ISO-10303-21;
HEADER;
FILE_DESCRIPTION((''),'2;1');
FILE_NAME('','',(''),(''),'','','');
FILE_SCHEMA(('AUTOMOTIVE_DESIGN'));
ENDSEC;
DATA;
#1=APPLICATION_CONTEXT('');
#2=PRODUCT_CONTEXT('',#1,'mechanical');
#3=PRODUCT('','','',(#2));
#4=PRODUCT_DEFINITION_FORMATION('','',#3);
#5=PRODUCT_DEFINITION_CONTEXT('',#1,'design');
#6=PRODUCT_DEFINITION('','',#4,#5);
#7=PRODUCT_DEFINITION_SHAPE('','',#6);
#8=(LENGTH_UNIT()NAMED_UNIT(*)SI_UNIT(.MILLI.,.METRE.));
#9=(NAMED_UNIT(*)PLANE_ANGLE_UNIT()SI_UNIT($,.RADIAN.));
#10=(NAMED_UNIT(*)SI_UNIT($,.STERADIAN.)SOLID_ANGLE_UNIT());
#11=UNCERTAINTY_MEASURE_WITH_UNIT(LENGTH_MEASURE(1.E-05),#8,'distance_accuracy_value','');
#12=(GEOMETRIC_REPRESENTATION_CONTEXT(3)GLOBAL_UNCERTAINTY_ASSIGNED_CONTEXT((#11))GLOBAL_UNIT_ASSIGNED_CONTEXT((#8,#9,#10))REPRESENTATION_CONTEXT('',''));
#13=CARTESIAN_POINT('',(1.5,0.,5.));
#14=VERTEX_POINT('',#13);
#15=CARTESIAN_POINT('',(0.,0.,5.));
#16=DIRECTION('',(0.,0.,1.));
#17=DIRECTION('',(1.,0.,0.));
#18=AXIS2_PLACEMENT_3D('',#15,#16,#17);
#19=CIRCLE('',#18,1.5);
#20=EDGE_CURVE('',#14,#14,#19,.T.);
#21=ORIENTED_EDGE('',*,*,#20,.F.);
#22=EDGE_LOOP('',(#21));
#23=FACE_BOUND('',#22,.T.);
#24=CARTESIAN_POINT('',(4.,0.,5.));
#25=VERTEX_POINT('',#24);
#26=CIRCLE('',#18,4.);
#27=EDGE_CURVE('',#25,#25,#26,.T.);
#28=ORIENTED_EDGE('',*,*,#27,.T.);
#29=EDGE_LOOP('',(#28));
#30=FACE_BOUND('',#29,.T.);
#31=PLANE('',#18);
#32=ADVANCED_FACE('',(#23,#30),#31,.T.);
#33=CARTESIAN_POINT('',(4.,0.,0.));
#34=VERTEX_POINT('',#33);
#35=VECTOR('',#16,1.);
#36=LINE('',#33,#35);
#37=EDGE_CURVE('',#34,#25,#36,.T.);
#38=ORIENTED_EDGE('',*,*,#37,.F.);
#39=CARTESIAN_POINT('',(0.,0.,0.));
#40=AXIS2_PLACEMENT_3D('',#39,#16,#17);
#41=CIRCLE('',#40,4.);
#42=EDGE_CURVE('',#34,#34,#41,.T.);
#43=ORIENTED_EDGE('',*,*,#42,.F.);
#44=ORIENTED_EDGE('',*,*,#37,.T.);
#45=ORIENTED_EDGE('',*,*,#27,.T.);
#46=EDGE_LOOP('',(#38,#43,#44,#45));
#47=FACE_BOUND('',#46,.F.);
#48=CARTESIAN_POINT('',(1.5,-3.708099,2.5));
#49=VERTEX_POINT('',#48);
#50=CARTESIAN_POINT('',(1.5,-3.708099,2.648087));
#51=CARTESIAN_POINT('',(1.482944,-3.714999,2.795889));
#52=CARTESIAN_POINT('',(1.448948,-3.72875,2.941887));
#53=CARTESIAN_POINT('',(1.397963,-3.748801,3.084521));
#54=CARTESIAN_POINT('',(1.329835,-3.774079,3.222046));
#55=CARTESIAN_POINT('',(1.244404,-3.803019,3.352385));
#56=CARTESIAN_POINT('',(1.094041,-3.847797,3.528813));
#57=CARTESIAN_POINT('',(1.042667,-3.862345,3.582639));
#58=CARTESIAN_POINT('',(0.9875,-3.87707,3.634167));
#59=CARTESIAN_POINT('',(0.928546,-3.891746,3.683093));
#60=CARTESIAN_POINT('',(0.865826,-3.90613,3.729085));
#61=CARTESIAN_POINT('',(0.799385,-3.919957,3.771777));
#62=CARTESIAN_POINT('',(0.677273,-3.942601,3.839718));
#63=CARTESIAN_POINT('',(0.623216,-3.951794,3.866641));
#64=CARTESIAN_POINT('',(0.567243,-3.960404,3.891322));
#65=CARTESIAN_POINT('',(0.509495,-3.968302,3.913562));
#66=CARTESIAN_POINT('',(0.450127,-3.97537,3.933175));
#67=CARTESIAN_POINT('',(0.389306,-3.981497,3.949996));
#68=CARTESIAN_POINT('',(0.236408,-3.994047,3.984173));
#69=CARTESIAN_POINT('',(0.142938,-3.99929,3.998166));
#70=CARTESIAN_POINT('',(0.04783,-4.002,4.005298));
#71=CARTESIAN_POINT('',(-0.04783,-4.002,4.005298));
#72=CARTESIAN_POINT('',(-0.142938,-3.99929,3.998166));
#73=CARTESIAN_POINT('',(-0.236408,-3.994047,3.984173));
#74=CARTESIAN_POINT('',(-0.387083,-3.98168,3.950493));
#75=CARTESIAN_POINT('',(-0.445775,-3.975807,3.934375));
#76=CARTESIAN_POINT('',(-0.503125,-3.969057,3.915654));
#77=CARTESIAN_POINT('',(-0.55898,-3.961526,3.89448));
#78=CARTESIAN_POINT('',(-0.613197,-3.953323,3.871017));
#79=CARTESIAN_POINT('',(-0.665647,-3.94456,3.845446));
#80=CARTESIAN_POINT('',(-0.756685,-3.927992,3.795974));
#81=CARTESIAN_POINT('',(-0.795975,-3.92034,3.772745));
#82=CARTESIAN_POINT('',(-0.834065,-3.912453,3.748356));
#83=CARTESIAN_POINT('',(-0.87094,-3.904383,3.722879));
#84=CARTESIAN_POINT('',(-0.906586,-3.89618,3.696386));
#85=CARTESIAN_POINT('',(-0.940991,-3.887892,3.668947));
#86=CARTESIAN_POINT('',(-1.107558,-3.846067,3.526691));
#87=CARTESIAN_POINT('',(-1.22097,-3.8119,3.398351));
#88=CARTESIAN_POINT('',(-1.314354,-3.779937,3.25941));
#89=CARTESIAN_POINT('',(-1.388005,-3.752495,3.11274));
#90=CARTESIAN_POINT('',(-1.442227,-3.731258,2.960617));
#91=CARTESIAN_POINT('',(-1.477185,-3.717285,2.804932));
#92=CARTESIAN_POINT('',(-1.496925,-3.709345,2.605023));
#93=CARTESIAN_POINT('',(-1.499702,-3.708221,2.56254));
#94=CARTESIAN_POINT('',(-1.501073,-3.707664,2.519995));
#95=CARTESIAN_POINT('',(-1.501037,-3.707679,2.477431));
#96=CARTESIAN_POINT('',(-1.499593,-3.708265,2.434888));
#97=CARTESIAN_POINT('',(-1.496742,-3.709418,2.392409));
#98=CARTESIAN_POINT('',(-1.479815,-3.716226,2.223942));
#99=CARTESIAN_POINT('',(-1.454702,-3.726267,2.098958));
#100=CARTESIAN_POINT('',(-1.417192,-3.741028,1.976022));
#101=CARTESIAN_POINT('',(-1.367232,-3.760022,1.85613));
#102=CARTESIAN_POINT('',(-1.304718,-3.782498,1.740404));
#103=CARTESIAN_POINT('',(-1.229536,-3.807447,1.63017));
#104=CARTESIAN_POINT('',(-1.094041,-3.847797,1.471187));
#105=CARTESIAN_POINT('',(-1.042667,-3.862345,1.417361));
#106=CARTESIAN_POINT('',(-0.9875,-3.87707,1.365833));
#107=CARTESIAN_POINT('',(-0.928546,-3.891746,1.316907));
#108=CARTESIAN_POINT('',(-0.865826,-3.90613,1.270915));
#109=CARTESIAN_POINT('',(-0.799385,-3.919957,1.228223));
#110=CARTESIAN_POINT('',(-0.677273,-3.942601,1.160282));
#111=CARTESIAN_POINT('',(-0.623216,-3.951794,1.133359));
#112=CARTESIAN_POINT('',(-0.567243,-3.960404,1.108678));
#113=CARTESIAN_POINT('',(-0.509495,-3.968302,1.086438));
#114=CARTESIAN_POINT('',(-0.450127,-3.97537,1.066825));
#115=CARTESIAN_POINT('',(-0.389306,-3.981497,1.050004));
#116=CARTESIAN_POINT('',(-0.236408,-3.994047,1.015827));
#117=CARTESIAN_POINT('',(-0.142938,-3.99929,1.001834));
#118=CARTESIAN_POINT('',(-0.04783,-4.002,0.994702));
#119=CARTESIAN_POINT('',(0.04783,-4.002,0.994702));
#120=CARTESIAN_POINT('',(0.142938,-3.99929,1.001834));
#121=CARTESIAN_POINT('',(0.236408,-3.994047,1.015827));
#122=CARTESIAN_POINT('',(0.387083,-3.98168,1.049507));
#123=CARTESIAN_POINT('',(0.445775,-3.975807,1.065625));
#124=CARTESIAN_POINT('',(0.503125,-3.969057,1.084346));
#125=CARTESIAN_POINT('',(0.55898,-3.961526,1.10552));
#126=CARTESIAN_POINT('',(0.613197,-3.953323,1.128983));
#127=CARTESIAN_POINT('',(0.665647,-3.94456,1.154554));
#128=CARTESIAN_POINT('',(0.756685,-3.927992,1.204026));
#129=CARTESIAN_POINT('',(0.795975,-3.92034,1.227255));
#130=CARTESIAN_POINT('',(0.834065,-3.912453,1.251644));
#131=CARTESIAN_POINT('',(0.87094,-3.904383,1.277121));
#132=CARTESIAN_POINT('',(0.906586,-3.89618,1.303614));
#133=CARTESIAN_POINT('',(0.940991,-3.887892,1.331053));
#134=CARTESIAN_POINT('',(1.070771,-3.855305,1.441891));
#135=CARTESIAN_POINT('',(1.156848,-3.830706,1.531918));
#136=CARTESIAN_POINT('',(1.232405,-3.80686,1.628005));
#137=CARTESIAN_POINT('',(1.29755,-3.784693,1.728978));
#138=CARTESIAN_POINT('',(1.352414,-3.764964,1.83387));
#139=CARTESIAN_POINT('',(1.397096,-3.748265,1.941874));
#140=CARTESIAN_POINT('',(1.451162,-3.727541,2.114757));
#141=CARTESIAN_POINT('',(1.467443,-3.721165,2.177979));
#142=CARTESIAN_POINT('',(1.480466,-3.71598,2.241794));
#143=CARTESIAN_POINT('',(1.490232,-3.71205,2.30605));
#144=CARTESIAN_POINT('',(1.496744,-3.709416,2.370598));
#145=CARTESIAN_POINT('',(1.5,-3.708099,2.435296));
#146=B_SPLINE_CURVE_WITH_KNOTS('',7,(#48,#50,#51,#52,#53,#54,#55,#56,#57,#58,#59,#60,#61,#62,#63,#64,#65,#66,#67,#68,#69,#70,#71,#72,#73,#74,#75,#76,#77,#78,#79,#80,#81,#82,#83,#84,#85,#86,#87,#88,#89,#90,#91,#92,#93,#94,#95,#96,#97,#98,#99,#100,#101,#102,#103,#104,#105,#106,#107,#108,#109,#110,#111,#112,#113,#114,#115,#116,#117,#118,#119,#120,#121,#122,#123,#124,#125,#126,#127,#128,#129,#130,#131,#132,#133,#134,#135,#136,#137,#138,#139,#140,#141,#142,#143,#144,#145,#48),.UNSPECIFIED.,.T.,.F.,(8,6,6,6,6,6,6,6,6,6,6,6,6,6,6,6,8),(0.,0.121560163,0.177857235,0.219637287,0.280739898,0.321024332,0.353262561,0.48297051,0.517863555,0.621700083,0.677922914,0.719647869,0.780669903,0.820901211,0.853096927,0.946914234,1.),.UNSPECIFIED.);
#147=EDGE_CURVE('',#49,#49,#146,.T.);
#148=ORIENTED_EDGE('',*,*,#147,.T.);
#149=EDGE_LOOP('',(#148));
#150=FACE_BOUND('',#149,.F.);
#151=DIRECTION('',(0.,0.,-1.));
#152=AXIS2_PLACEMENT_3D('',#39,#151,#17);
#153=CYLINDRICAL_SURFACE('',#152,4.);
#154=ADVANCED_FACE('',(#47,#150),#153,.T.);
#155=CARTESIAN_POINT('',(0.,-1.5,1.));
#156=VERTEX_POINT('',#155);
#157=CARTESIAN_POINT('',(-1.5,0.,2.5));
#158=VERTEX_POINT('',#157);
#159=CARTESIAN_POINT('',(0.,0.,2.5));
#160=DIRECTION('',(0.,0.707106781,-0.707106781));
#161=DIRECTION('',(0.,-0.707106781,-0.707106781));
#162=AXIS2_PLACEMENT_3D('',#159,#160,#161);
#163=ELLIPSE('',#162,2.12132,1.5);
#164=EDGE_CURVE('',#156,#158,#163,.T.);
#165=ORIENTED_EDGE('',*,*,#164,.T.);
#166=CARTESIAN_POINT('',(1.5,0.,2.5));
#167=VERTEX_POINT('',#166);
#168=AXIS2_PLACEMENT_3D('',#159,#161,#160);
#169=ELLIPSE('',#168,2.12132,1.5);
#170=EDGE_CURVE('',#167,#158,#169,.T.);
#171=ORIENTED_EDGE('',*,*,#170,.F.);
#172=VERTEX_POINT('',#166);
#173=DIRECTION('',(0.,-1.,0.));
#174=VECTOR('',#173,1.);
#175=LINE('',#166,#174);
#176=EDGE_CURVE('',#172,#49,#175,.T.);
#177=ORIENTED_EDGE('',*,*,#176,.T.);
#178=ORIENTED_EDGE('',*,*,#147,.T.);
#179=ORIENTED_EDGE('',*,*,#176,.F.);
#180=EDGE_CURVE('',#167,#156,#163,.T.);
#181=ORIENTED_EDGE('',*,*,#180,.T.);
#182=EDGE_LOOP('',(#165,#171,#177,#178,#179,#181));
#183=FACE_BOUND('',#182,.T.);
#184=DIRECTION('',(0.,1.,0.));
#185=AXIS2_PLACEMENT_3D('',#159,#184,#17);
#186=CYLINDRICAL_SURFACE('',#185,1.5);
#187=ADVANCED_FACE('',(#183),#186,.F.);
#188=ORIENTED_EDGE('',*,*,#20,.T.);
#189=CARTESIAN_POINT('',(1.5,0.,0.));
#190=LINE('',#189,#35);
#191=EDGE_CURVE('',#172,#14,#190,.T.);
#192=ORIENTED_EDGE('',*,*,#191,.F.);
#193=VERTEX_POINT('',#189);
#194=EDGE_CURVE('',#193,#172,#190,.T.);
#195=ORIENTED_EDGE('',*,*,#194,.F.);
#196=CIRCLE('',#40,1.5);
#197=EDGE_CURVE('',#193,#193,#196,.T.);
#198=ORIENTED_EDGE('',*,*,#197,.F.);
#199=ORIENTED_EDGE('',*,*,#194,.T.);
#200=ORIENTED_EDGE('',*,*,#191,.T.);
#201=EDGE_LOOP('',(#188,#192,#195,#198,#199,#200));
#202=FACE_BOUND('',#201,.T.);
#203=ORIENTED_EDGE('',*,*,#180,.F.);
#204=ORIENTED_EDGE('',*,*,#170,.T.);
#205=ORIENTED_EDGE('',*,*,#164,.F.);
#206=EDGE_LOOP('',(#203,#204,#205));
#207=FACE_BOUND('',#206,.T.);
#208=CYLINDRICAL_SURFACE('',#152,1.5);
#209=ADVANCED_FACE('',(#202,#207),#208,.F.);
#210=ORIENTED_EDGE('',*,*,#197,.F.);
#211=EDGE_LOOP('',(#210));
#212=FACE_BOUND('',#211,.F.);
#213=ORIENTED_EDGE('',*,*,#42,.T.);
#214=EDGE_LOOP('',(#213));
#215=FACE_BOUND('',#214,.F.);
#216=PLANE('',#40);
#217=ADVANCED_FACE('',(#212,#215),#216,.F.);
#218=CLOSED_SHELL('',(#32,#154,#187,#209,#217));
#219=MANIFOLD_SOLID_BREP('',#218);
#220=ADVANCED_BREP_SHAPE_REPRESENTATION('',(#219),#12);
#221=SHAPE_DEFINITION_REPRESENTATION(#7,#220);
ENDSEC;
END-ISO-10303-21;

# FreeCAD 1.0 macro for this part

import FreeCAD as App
import Part
import Sketcher
from FreeCAD import Vector

doc = App.newDocument("Part")
body = doc.addObject("PartDesign::Body", "Body")

# Sketch on XY plane
sketch1 = body.newObject("Sketcher::SketchObject", "Sketch")
sketch1.AttachmentSupport = (doc.getObject("XY_Plane"), [""])
sketch1.MapMode = "FlatFace"
sketch1.addGeometry(Part.Circle(Vector(0, 0, 0), Vector(0, 0, 1), 4), False)
sketch1.addGeometry(Part.Circle(Vector(0, 0, 0), Vector(0, 0, 1), 1.5), False)
sketch1.addConstraint(Sketcher.Constraint("Coincident", 0, 3, -1, 1))
sketch1.addConstraint(Sketcher.Constraint("Coincident", 1, 3, -1, 1))
sketch1.addConstraint(Sketcher.Constraint("Diameter", 0, 8.0))
sketch1.addConstraint(Sketcher.Constraint("Diameter", 1, 3.0))
pad1 = body.newObject("PartDesign::Pad", "Pad")
pad1.Profile = sketch1
pad1.Length = 5

# Sketch on XZ plane
sketch2 = body.newObject("Sketcher::SketchObject", "Sketch001")
sketch2.AttachmentSupport = (doc.getObject("XZ_Plane"), [""])
sketch2.MapMode = "FlatFace"
sketch2.addGeometry(Part.Circle(Vector(0, 2.5, 0), Vector(0, 0, 1), 1.5), False)
sketch2.addConstraint(Sketcher.Constraint("PointOnObject", 0, 3, -2))
sketch2.addConstraint(Sketcher.Constraint("Diameter", 0, 3.0))
sketch2.addConstraint(Sketcher.Constraint("DistanceY", -1, 1, 0, 3, 2.5))
pocket1 = body.newObject("PartDesign::Pocket", "Pocket")
pocket1.Profile = sketch2
pocket1.Length = 25
pocket1.Reversed = True

doc.recompute()
